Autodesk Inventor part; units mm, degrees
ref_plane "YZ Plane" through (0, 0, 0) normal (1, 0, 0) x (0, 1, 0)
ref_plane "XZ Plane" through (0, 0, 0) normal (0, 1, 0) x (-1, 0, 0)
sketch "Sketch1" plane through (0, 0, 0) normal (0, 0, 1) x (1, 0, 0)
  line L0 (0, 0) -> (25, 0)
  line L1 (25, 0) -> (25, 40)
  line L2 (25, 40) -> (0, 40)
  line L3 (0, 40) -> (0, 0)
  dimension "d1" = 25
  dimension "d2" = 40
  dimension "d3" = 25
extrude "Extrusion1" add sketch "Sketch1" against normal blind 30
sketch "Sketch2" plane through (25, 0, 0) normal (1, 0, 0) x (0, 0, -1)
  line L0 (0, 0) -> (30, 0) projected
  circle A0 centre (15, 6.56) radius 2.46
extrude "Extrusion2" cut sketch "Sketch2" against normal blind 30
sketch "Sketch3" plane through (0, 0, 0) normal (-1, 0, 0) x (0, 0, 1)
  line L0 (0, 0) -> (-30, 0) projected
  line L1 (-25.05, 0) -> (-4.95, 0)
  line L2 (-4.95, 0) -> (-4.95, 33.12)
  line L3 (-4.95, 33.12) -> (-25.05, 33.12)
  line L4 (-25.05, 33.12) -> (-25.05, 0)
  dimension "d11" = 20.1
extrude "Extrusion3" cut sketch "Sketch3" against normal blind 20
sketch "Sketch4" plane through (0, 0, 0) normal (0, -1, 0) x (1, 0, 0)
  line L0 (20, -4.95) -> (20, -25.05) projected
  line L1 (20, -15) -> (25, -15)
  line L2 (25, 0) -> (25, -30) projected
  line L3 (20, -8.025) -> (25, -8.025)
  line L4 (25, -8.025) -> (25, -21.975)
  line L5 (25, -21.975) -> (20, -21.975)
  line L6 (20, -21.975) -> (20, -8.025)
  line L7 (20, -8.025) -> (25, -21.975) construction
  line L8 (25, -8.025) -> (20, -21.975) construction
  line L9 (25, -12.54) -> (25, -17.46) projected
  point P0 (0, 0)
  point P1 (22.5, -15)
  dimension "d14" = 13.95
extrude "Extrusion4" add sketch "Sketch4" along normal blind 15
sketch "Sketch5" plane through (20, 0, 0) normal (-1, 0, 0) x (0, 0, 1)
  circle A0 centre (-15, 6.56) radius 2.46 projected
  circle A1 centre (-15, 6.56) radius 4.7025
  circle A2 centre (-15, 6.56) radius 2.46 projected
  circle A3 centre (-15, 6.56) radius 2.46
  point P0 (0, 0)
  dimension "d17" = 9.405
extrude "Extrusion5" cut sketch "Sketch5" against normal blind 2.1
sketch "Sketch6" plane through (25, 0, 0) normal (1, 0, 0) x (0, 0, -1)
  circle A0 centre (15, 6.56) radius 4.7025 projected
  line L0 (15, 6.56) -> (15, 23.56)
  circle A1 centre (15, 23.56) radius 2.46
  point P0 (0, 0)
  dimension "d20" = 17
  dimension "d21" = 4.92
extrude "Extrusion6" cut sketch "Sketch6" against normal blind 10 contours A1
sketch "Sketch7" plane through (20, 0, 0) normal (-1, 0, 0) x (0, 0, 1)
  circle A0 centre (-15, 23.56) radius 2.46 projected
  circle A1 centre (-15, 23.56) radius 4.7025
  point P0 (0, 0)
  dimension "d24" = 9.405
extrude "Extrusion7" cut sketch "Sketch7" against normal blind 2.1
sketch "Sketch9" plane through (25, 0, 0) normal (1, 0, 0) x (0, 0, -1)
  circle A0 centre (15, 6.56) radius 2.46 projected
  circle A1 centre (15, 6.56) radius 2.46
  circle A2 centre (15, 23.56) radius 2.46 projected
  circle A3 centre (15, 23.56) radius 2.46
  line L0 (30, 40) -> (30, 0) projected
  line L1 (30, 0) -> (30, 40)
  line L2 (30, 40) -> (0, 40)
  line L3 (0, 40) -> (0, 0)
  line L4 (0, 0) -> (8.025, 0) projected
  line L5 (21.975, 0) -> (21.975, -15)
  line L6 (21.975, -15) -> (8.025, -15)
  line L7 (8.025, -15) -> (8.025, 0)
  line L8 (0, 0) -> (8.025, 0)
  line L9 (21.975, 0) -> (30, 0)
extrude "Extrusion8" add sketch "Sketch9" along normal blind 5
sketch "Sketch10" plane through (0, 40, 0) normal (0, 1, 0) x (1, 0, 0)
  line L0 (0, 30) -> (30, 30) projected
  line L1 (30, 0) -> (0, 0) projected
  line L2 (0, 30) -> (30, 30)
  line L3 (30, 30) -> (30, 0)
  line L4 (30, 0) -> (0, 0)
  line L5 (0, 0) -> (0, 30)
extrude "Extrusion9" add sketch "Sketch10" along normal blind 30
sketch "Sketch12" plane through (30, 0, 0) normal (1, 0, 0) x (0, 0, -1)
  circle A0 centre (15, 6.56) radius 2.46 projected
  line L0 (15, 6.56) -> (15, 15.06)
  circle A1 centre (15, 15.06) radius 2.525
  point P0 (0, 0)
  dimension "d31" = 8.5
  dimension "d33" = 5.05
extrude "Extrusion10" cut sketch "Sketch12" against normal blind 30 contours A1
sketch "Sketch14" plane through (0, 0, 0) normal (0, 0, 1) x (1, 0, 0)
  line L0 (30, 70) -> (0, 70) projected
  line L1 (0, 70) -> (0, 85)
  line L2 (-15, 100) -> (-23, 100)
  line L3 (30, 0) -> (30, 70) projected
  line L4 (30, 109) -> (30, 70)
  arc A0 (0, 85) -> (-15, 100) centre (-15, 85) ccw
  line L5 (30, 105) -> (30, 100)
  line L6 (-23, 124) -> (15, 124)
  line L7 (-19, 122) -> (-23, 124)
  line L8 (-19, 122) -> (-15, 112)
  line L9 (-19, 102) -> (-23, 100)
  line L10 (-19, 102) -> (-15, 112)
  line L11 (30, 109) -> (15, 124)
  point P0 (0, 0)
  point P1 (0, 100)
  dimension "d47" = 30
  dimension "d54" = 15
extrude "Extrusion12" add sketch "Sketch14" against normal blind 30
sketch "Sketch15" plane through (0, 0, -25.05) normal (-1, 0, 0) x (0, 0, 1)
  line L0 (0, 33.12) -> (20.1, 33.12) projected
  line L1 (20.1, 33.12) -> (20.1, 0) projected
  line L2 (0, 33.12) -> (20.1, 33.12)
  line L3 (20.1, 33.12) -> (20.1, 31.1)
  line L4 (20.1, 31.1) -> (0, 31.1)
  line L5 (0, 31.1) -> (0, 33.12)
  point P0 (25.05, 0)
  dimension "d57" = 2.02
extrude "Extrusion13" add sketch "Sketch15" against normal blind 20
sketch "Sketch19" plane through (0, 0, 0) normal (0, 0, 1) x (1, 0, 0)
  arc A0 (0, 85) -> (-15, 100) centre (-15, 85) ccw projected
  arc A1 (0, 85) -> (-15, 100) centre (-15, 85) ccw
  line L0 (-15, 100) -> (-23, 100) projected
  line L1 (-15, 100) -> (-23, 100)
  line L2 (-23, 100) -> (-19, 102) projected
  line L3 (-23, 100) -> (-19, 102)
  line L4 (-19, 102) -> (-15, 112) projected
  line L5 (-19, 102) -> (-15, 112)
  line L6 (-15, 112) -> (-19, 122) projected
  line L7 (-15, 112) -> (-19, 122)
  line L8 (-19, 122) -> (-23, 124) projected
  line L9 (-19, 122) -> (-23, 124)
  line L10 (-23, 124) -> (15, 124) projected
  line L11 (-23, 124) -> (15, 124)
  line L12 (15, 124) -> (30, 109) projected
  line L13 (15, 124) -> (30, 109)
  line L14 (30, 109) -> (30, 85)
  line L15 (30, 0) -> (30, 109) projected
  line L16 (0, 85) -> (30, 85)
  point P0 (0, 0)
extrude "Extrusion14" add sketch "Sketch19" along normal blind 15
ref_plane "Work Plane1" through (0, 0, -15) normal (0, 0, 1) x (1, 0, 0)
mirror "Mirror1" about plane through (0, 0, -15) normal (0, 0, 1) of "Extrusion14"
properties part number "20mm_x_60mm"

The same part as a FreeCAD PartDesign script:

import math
import FreeCAD as App
import Part
import Sketcher

V = App.Vector
Q = App.Units.Quantity

doc = App.newDocument("Part")
body = doc.addObject("PartDesign::Body", "Body")

sketch1 = body.newObject("Sketcher::SketchObject", "Sketch")
sketch1.AttachmentSupport = (doc.getObject("XY_Plane"), [""])
sketch1.MapMode = "FlatFace"
sketch1.addGeometry(Part.LineSegment(V(0, 40, 0), V(0, 0, 0)), False)
sketch1.addGeometry(Part.LineSegment(V(0, 0, 0), V(25, 0, 0)), False)
sketch1.addGeometry(Part.LineSegment(V(25, 0, 0), V(25, 40, 0)), False)
sketch1.addGeometry(Part.LineSegment(V(25, 40, 0), V(0, 40, 0)), False)
sketch1.addConstraint(Sketcher.Constraint("Coincident", 0, 2, 1, 1))
sketch1.addConstraint(Sketcher.Constraint("Coincident", 1, 2, 2, 1))
sketch1.addConstraint(Sketcher.Constraint("Coincident", 2, 2, 3, 1))
sketch1.addConstraint(Sketcher.Constraint("Coincident", 3, 2, 0, 1))
sketch1.addConstraint(Sketcher.Constraint("Vertical", 0))
sketch1.addConstraint(Sketcher.Constraint("Horizontal", 1))
sketch1.addConstraint(Sketcher.Constraint("Vertical", 2))
sketch1.addConstraint(Sketcher.Constraint("Horizontal", 3))
sketch1.addConstraint(Sketcher.Constraint("Coincident", 0, 2, -1, 1))
sketch1.addConstraint(Sketcher.Constraint("DistanceX", 1, 1, 1, 2, Q("25 mm")))
sketch1.addConstraint(Sketcher.Constraint("DistanceY", 0, 2, 0, 1, Q("40 mm")))
pad1 = body.newObject("PartDesign::Pad", "Pad")
pad1.Profile = sketch1
pad1.Length = 30
pad1.Reversed = True

sketch2 = body.newObject("Sketcher::SketchObject", "Sketch001")
sketch2.AttachmentSupport = (doc.getObject("YZ_Plane"), [""])
sketch2.MapMode = "FlatFace"
sketch2.AttachmentOffset = App.Placement(V(0, 0, 25), App.Rotation())
sketch2.addGeometry(Part.Circle(V(6.6, -15, 0), V(0, 0, 1), 2.5), False)
sketch2.addConstraint(Sketcher.Constraint("Diameter", 0, Q("4.92 mm")))
sketch2.addConstraint(Sketcher.Constraint("DistanceY", 0, 3, -1, 1, Q("15 mm")))
sketch2.addConstraint(Sketcher.Constraint("DistanceX", -1, 1, 0, 3, Q("6.56 mm")))
pocket1 = body.newObject("PartDesign::Pocket", "Pocket")
pocket1.Profile = sketch2
pocket1.Length = 30

sketch3 = body.newObject("Sketcher::SketchObject", "Sketch002")
sketch3.AttachmentSupport = (doc.getObject("YZ_Plane"), [""])
sketch3.MapMode = "FlatFace"
sketch3.addGeometry(Part.LineSegment(V(0, -25, 0), V(0, -5, 0)), False)
sketch3.addGeometry(Part.LineSegment(V(0, -5, 0), V(33, -5, 0)), False)
sketch3.addGeometry(Part.LineSegment(V(33, -5, 0), V(33, -25, 0)), False)
sketch3.addGeometry(Part.LineSegment(V(33, -25, 0), V(0, -25, 0)), False)
sketch3.addConstraint(Sketcher.Constraint("Coincident", 0, 2, 1, 1))
sketch3.addConstraint(Sketcher.Constraint("Coincident", 1, 2, 2, 1))
sketch3.addConstraint(Sketcher.Constraint("Coincident", 2, 2, 3, 1))
sketch3.addConstraint(Sketcher.Constraint("Coincident", 3, 2, 0, 1))
sketch3.addConstraint(Sketcher.Constraint("Vertical", 0))
sketch3.addConstraint(Sketcher.Constraint("Horizontal", 1))
sketch3.addConstraint(Sketcher.Constraint("Vertical", 2))
sketch3.addConstraint(Sketcher.Constraint("Horizontal", 3))
sketch3.addConstraint(Sketcher.Constraint("PointOnObject", 0, 2, -2))
sketch3.addConstraint(Sketcher.Constraint("DistanceY", 0, 1, 0, 2, Q("20.1 mm")))
sketch3.addConstraint(Sketcher.Constraint("DistanceX", 1, 1, 1, 2, Q("33.12 mm")))
sketch3.addConstraint(Sketcher.Constraint("DistanceY", 0, 2, -1, 1, Q("4.95 mm")))
pocket2 = body.newObject("PartDesign::Pocket", "Pocket001")
pocket2.Profile = sketch3
pocket2.Length = 20
pocket2.Reversed = True

sketch4 = body.newObject("Sketcher::SketchObject", "Sketch003")
sketch4.AttachmentSupport = (doc.getObject("XZ_Plane"), [""])
sketch4.MapMode = "FlatFace"
sketch4.addGeometry(Part.LineSegment(V(25, -8, 0), V(20, -8, 0)), False)
sketch4.addGeometry(Part.LineSegment(V(20, -8, 0), V(20, -22, 0)), False)
sketch4.addGeometry(Part.LineSegment(V(20, -22, 0), V(25, -22, 0)), False)
sketch4.addGeometry(Part.LineSegment(V(25, -22, 0), V(25, -8, 0)), False)
sketch4.addConstraint(Sketcher.Constraint("Coincident", 0, 2, 1, 1))
sketch4.addConstraint(Sketcher.Constraint("Coincident", 1, 2, 2, 1))
sketch4.addConstraint(Sketcher.Constraint("Coincident", 2, 2, 3, 1))
sketch4.addConstraint(Sketcher.Constraint("Coincident", 3, 2, 0, 1))
sketch4.addConstraint(Sketcher.Constraint("Horizontal", 0))
sketch4.addConstraint(Sketcher.Constraint("Vertical", 1))
sketch4.addConstraint(Sketcher.Constraint("Horizontal", 2))
sketch4.addConstraint(Sketcher.Constraint("Vertical", 3))
sketch4.addConstraint(Sketcher.Constraint("DistanceY", 1, 2, 1, 1, Q("13.95 mm")))
sketch4.addConstraint(Sketcher.Constraint("DistanceX", 0, 2, 0, 1, Q("5 mm")))
sketch4.addConstraint(Sketcher.Constraint("DistanceX", -1, 1, 0, 2, Q("20 mm")))
sketch4.addConstraint(Sketcher.Constraint("DistanceY", 0, 2, -1, 1, Q("8.025 mm")))
pad2 = body.newObject("PartDesign::Pad", "Pad001")
pad2.Profile = sketch4
pad2.Length = 15

sketch5 = body.newObject("Sketcher::SketchObject", "Sketch004")
sketch5.AttachmentSupport = (doc.getObject("YZ_Plane"), [""])
sketch5.MapMode = "FlatFace"
sketch5.AttachmentOffset = App.Placement(V(0, 0, 20), App.Rotation())
sketch5.addGeometry(Part.Circle(V(6.6, -15, 0), V(0, 0, 1), 4.7), False)
sketch5.addGeometry(Part.Circle(V(6.6, -15, 0), V(0, 0, 1), 2.5), False)
sketch5.addConstraint(Sketcher.Constraint("Coincident", 1, 3, 0, 3))
sketch5.addConstraint(Sketcher.Constraint("Diameter", 0, Q("9.405 mm")))
sketch5.addConstraint(Sketcher.Constraint("Diameter", 1, Q("4.92 mm")))
sketch5.addConstraint(Sketcher.Constraint("DistanceY", 0, 3, -1, 1, Q("15 mm")))
sketch5.addConstraint(Sketcher.Constraint("DistanceX", -1, 1, 0, 3, Q("6.56 mm")))
pocket3 = body.newObject("PartDesign::Pocket", "Pocket002")
pocket3.Profile = sketch5
pocket3.Length = 2.1
pocket3.Reversed = True

sketch6 = body.newObject("Sketcher::SketchObject", "Sketch005")
sketch6.AttachmentSupport = (doc.getObject("YZ_Plane"), [""])
sketch6.MapMode = "FlatFace"
sketch6.AttachmentOffset = App.Placement(V(0, 0, 25), App.Rotation())
sketch6.addGeometry(Part.Circle(V(23.6, -15, 0), V(0, 0, 1), 2.5), False)
sketch6.addConstraint(Sketcher.Constraint("Diameter", 0, Q("4.92 mm")))
sketch6.addConstraint(Sketcher.Constraint("DistanceY", 0, 3, -1, 1, Q("15 mm")))
sketch6.addConstraint(Sketcher.Constraint("DistanceX", -1, 1, 0, 3, Q("23.56 mm")))
pocket4 = body.newObject("PartDesign::Pocket", "Pocket003")
pocket4.Profile = sketch6
pocket4.Length = 10

sketch7 = body.newObject("Sketcher::SketchObject", "Sketch006")
sketch7.AttachmentSupport = (doc.getObject("YZ_Plane"), [""])
sketch7.MapMode = "FlatFace"
sketch7.AttachmentOffset = App.Placement(V(0, 0, 20), App.Rotation())
sketch7.addGeometry(Part.Circle(V(23.6, -15, 0), V(0, 0, 1), 4.7), False)
sketch7.addGeometry(Part.Circle(V(23.6, -15, 0), V(0, 0, 1), 2.5), False)
sketch7.addConstraint(Sketcher.Constraint("Coincident", 1, 3, 0, 3))
sketch7.addConstraint(Sketcher.Constraint("Diameter", 0, Q("9.405 mm")))
sketch7.addConstraint(Sketcher.Constraint("Diameter", 1, Q("4.92 mm")))
sketch7.addConstraint(Sketcher.Constraint("DistanceY", 0, 3, -1, 1, Q("15 mm")))
sketch7.addConstraint(Sketcher.Constraint("DistanceX", -1, 1, 0, 3, Q("23.56 mm")))
pocket5 = body.newObject("PartDesign::Pocket", "Pocket004")
pocket5.Profile = sketch7
pocket5.Length = 2.1
pocket5.Reversed = True

sketch8 = body.newObject("Sketcher::SketchObject", "Sketch007")
sketch8.AttachmentSupport = (doc.getObject("YZ_Plane"), [""])
sketch8.MapMode = "FlatFace"
sketch8.AttachmentOffset = App.Placement(V(0, 0, 25), App.Rotation())
sketch8.addGeometry(Part.LineSegment(V(0, -30, 0), V(40, -30, 0)), False)
sketch8.addGeometry(Part.LineSegment(V(40, -30, 0), V(40, 0, 0)), False)
sketch8.addGeometry(Part.LineSegment(V(40, 0, 0), V(0, 0, 0)), False)
sketch8.addGeometry(Part.LineSegment(V(0, 0, 0), V(0, -8, 0)), False)
sketch8.addGeometry(Part.LineSegment(V(0, -8, 0), V(-15, -8, 0)), False)
sketch8.addGeometry(Part.LineSegment(V(-15, -8, 0), V(-15, -22, 0)), False)
sketch8.addGeometry(Part.LineSegment(V(-15, -22, 0), V(0, -22, 0)), False)
sketch8.addGeometry(Part.LineSegment(V(0, -22, 0), V(0, -30, 0)), False)
sketch8.addGeometry(Part.Circle(V(6.6, -15, 0), V(0, 0, 1), 2.5), False)
sketch8.addGeometry(Part.Circle(V(23.6, -15, 0), V(0, 0, 1), 2.5), False)
sketch8.addConstraint(Sketcher.Constraint("Coincident", 0, 2, 1, 1))
sketch8.addConstraint(Sketcher.Constraint("Coincident", 1, 2, 2, 1))
sketch8.addConstraint(Sketcher.Constraint("Coincident", 2, 2, 3, 1))
sketch8.addConstraint(Sketcher.Constraint("Coincident", 3, 2, 4, 1))
sketch8.addConstraint(Sketcher.Constraint("Coincident", 4, 2, 5, 1))
sketch8.addConstraint(Sketcher.Constraint("Coincident", 5, 2, 6, 1))
sketch8.addConstraint(Sketcher.Constraint("Coincident", 6, 2, 7, 1))
sketch8.addConstraint(Sketcher.Constraint("Coincident", 7, 2, 0, 1))
sketch8.addConstraint(Sketcher.Constraint("Horizontal", 0))
sketch8.addConstraint(Sketcher.Constraint("Vertical", 1))
sketch8.addConstraint(Sketcher.Constraint("Horizontal", 2))
sketch8.addConstraint(Sketcher.Constraint("Vertical", 3))
sketch8.addConstraint(Sketcher.Constraint("Horizontal", 4))
sketch8.addConstraint(Sketcher.Constraint("Vertical", 5))
sketch8.addConstraint(Sketcher.Constraint("Horizontal", 6))
sketch8.addConstraint(Sketcher.Constraint("Vertical", 7))
sketch8.addConstraint(Sketcher.Constraint("Coincident", 2, 2, -1, 1))
sketch8.addConstraint(Sketcher.Constraint("Equal", 8, 9))
sketch8.addConstraint(Sketcher.Constraint("PointOnObject", 6, 2, -2))
sketch8.addConstraint(Sketcher.Constraint("Horizontal", 8, 3, 9, 3))
sketch8.addConstraint(Sketcher.Constraint("Equal", 3, 7))
sketch8.addConstraint(Sketcher.Constraint("Diameter", 8, Q("4.92 mm")))
sketch8.addConstraint(Sketcher.Constraint("DistanceX", 0, 1, 0, 2, Q("40 mm")))
sketch8.addConstraint(Sketcher.Constraint("DistanceX", 4, 2, 4, 1, Q("15 mm")))
sketch8.addConstraint(Sketcher.Constraint("DistanceY", 1, 1, 1, 2, Q("30 mm")))
sketch8.addConstraint(Sketcher.Constraint("DistanceY", 8, 3, -1, 1, Q("15 mm")))
sketch8.addConstraint(Sketcher.Constraint("DistanceX", 8, 3, 9, 3, Q("17 mm")))
sketch8.addConstraint(Sketcher.Constraint("DistanceY", 5, 2, 5, 1, Q("13.95 mm")))
sketch8.addConstraint(Sketcher.Constraint("DistanceX", -1, 1, 8, 3, Q("6.56 mm")))
pad3 = body.newObject("PartDesign::Pad", "Pad002")
pad3.Profile = sketch8
pad3.Length = 5

sketch9 = body.newObject("Sketcher::SketchObject", "Sketch008")
sketch9.AttachmentSupport = (doc.getObject("XZ_Plane"), [""])
sketch9.MapMode = "FlatFace"
sketch9.AttachmentOffset = App.Placement(V(0, 0, -40), App.Rotation())
sketch9.addGeometry(Part.LineSegment(V(30, -30, 0), V(0, -30, 0)), False)
sketch9.addGeometry(Part.LineSegment(V(0, -30, 0), V(0, 0, 0)), False)
sketch9.addGeometry(Part.LineSegment(V(0, 0, 0), V(30, 0, 0)), False)
sketch9.addGeometry(Part.LineSegment(V(30, 0, 0), V(30, -30, 0)), False)
sketch9.addConstraint(Sketcher.Constraint("Coincident", 0, 2, 1, 1))
sketch9.addConstraint(Sketcher.Constraint("Coincident", 1, 2, 2, 1))
sketch9.addConstraint(Sketcher.Constraint("Coincident", 2, 2, 3, 1))
sketch9.addConstraint(Sketcher.Constraint("Coincident", 3, 2, 0, 1))
sketch9.addConstraint(Sketcher.Constraint("Horizontal", 0))
sketch9.addConstraint(Sketcher.Constraint("Vertical", 1))
sketch9.addConstraint(Sketcher.Constraint("Horizontal", 2))
sketch9.addConstraint(Sketcher.Constraint("Vertical", 3))
sketch9.addConstraint(Sketcher.Constraint("Coincident", 1, 2, -1, 1))
sketch9.addConstraint(Sketcher.Constraint("Equal", 2, 1))
sketch9.addConstraint(Sketcher.Constraint("DistanceX", 0, 2, 0, 1, Q("30 mm")))
pad4 = body.newObject("PartDesign::Pad", "Pad003")
pad4.Profile = sketch9
pad4.Length = 30
pad4.Reversed = True

sketch10 = body.newObject("Sketcher::SketchObject", "Sketch009")
sketch10.AttachmentSupport = (doc.getObject("YZ_Plane"), [""])
sketch10.MapMode = "FlatFace"
sketch10.AttachmentOffset = App.Placement(V(0, 0, 30), App.Rotation())
sketch10.addGeometry(Part.Circle(V(15.1, -15, 0), V(0, 0, 1), 2.5), False)
sketch10.addConstraint(Sketcher.Constraint("Diameter", 0, Q("5.05 mm")))
sketch10.addConstraint(Sketcher.Constraint("DistanceY", 0, 3, -1, 1, Q("15 mm")))
sketch10.addConstraint(Sketcher.Constraint("DistanceX", -1, 1, 0, 3, Q("15.06 mm")))
pocket6 = body.newObject("PartDesign::Pocket", "Pocket005")
pocket6.Profile = sketch10
pocket6.Length = 30

sketch11 = body.newObject("Sketcher::SketchObject", "Sketch010")
sketch11.AttachmentSupport = (doc.getObject("XY_Plane"), [""])
sketch11.MapMode = "FlatFace"
sketch11.addGeometry(Part.LineSegment(V(0, 70, 0), V(30, 70, 0)), False)
sketch11.addGeometry(Part.LineSegment(V(30, 70, 0), V(30, 109, 0)), False)
sketch11.addGeometry(Part.LineSegment(V(30, 109, 0), V(15, 124, 0)), False)
sketch11.addGeometry(Part.LineSegment(V(15, 124, 0), V(-23, 124, 0)), False)
sketch11.addGeometry(Part.LineSegment(V(-23, 124, 0), V(-19, 122, 0)), False)
sketch11.addGeometry(Part.LineSegment(V(-19, 122, 0), V(-15, 112, 0)), False)
sketch11.addGeometry(Part.LineSegment(V(-15, 112, 0), V(-19, 102, 0)), False)
sketch11.addGeometry(Part.LineSegment(V(-19, 102, 0), V(-23, 100, 0)), False)
sketch11.addGeometry(Part.LineSegment(V(-23, 100, 0), V(-15, 100, 0)), False)
sketch11.addGeometry(Part.ArcOfCircle(Part.Circle(V(-15, 85, 0), V(0, 0, 1), 15), math.radians(0), math.radians(90)), False)
sketch11.addGeometry(Part.LineSegment(V(0, 85, 0), V(0, 70, 0)), False)
sketch11.addConstraint(Sketcher.Constraint("Coincident", 0, 2, 1, 1))
sketch11.addConstraint(Sketcher.Constraint("Coincident", 1, 2, 2, 1))
sketch11.addConstraint(Sketcher.Constraint("Coincident", 2, 2, 3, 1))
sketch11.addConstraint(Sketcher.Constraint("Coincident", 3, 2, 4, 1))
sketch11.addConstraint(Sketcher.Constraint("Coincident", 4, 2, 5, 1))
sketch11.addConstraint(Sketcher.Constraint("Coincident", 5, 2, 6, 1))
sketch11.addConstraint(Sketcher.Constraint("Coincident", 6, 2, 7, 1))
sketch11.addConstraint(Sketcher.Constraint("Coincident", 7, 2, 8, 1))
sketch11.addConstraint(Sketcher.Constraint("Tangent", 8, 2, 9, 2))
sketch11.addConstraint(Sketcher.Constraint("Tangent", 9, 1, 10, 1))
sketch11.addConstraint(Sketcher.Constraint("Coincident", 10, 2, 0, 1))
sketch11.addConstraint(Sketcher.Constraint("Horizontal", 0))
sketch11.addConstraint(Sketcher.Constraint("Vertical", 1))
sketch11.addConstraint(Sketcher.Constraint("Horizontal", 3))
sketch11.addConstraint(Sketcher.Constraint("Horizontal", 8))
sketch11.addConstraint(Sketcher.Constraint("Vertical", 10))
sketch11.addConstraint(Sketcher.Constraint("PointOnObject", 9, 1, -2))
sketch11.addConstraint(Sketcher.Constraint("Vertical", 9, 3, 5, 2))
sketch11.addConstraint(Sketcher.Constraint("Vertical", 4, 2, 6, 2))
sketch11.addConstraint(Sketcher.Constraint("Vertical", 3, 2, 7, 2))
sketch11.addConstraint(Sketcher.Constraint("Equal", 5, 6))
sketch11.addConstraint(Sketcher.Constraint("Equal", 4, 7))
sketch11.addConstraint(Sketcher.Constraint("Radius", 9, Q("15 mm")))
sketch11.addConstraint(Sketcher.Constraint("DistanceX", 0, 1, 0, 2, Q("30 mm")))
sketch11.addConstraint(Sketcher.Constraint("DistanceY", 10, 2, 10, 1, Q("15 mm")))
sketch11.addConstraint(Sketcher.Constraint("DistanceX", -1, 1, 2, 2, Q("15 mm")))
sketch11.addConstraint(Sketcher.Constraint("DistanceY", 1, 2, 2, 2, Q("15 mm")))
sketch11.addConstraint(Sketcher.Constraint("DistanceX", 3, 2, 3, 1, Q("38 mm")))
sketch11.addConstraint(Sketcher.Constraint("DistanceY", 1, 1, 1, 2, Q("39 mm")))
sketch11.addConstraint(Sketcher.Constraint("DistanceY", -1, 1, 9, 3, Q("85 mm")))
sketch11.addConstraint(Sketcher.Constraint("DistanceX", 4, 2, -1, 1, Q("19 mm")))
sketch11.addConstraint(Sketcher.Constraint("DistanceY", -1, 1, 4, 2, Q("122 mm")))
pad5 = body.newObject("PartDesign::Pad", "Pad004")
pad5.Profile = sketch11
pad5.Length = 30
pad5.Reversed = True

sketch12 = body.newObject("Sketcher::SketchObject", "Sketch011")
sketch12.AttachmentSupport = (doc.getObject("YZ_Plane"), [""])
sketch12.MapMode = "FlatFace"
sketch12.addGeometry(Part.LineSegment(V(33.1, -5, 0), V(33.1, -25.1, 0)), False)
sketch12.addGeometry(Part.LineSegment(V(33.1, -25.1, 0), V(31.1, -25.1, 0)), False)
sketch12.addGeometry(Part.LineSegment(V(31.1, -25.1, 0), V(31.1, -5, 0)), False)
sketch12.addGeometry(Part.LineSegment(V(31.1, -5, 0), V(33.1, -5, 0)), False)
sketch12.addConstraint(Sketcher.Constraint("Coincident", 0, 2, 1, 1))
sketch12.addConstraint(Sketcher.Constraint("Coincident", 1, 2, 2, 1))
sketch12.addConstraint(Sketcher.Constraint("Coincident", 2, 2, 3, 1))
sketch12.addConstraint(Sketcher.Constraint("Coincident", 3, 2, 0, 1))
sketch12.addConstraint(Sketcher.Constraint("Vertical", 0))
sketch12.addConstraint(Sketcher.Constraint("Horizontal", 1))
sketch12.addConstraint(Sketcher.Constraint("Vertical", 2))
sketch12.addConstraint(Sketcher.Constraint("Horizontal", 3))
sketch12.addConstraint(Sketcher.Constraint("DistanceX", 1, 2, 1, 1, Q("2.02 mm")))
sketch12.addConstraint(Sketcher.Constraint("DistanceY", 0, 2, 0, 1, Q("20.1 mm")))
sketch12.addConstraint(Sketcher.Constraint("DistanceX", -1, 1, 1, 2, Q("31.1 mm")))
sketch12.addConstraint(Sketcher.Constraint("DistanceY", 0, 2, -1, 1, Q("25.05 mm")))
pad6 = body.newObject("PartDesign::Pad", "Pad005")
pad6.Profile = sketch12
pad6.Length = 20

sketch13 = body.newObject("Sketcher::SketchObject", "Sketch012")
sketch13.AttachmentSupport = (doc.getObject("XY_Plane"), [""])
sketch13.MapMode = "FlatFace"
sketch13.addGeometry(Part.ArcOfCircle(Part.Circle(V(-15, 85, 0), V(0, 0, 1), 15), math.radians(0), math.radians(90)), False)
sketch13.addGeometry(Part.LineSegment(V(0, 85, 0), V(30, 85, 0)), False)
sketch13.addGeometry(Part.LineSegment(V(30, 85, 0), V(30, 109, 0)), False)
sketch13.addGeometry(Part.LineSegment(V(30, 109, 0), V(15, 124, 0)), False)
sketch13.addGeometry(Part.LineSegment(V(15, 124, 0), V(-23, 124, 0)), False)
sketch13.addGeometry(Part.LineSegment(V(-23, 124, 0), V(-19, 122, 0)), False)
sketch13.addGeometry(Part.LineSegment(V(-19, 122, 0), V(-15, 112, 0)), False)
sketch13.addGeometry(Part.LineSegment(V(-15, 112, 0), V(-19, 102, 0)), False)
sketch13.addGeometry(Part.LineSegment(V(-19, 102, 0), V(-23, 100, 0)), False)
sketch13.addGeometry(Part.LineSegment(V(-23, 100, 0), V(-15, 100, 0)), False)
sketch13.addConstraint(Sketcher.Constraint("Coincident", 0, 1, 1, 1))
sketch13.addConstraint(Sketcher.Constraint("Coincident", 1, 2, 2, 1))
sketch13.addConstraint(Sketcher.Constraint("Coincident", 2, 2, 3, 1))
sketch13.addConstraint(Sketcher.Constraint("Coincident", 3, 2, 4, 1))
sketch13.addConstraint(Sketcher.Constraint("Coincident", 4, 2, 5, 1))
sketch13.addConstraint(Sketcher.Constraint("Coincident", 5, 2, 6, 1))
sketch13.addConstraint(Sketcher.Constraint("Coincident", 6, 2, 7, 1))
sketch13.addConstraint(Sketcher.Constraint("Coincident", 7, 2, 8, 1))
sketch13.addConstraint(Sketcher.Constraint("Coincident", 8, 2, 9, 1))
sketch13.addConstraint(Sketcher.Constraint("Tangent", 9, 2, 0, 2))
sketch13.addConstraint(Sketcher.Constraint("Horizontal", 1))
sketch13.addConstraint(Sketcher.Constraint("Vertical", 2))
sketch13.addConstraint(Sketcher.Constraint("Horizontal", 4))
sketch13.addConstraint(Sketcher.Constraint("Horizontal", 9))
sketch13.addConstraint(Sketcher.Constraint("PointOnObject", 0, 1, -2))
sketch13.addConstraint(Sketcher.Constraint("Vertical", 0, 3, 6, 2))
sketch13.addConstraint(Sketcher.Constraint("Vertical", 5, 2, 7, 2))
sketch13.addConstraint(Sketcher.Constraint("Vertical", 4, 2, 8, 2))
sketch13.addConstraint(Sketcher.Constraint("Equal", 6, 7))
sketch13.addConstraint(Sketcher.Constraint("Equal", 5, 8))
sketch13.addConstraint(Sketcher.Constraint("Radius", 0, Q("15 mm")))
sketch13.addConstraint(Sketcher.Constraint("DistanceX", 1, 1, 1, 2, Q("30 mm")))
sketch13.addConstraint(Sketcher.Constraint("DistanceX", 4, 2, 4, 1, Q("38 mm")))
sketch13.addConstraint(Sketcher.Constraint("DistanceX", 9, 1, 9, 2, Q("8 mm")))
sketch13.addConstraint(Sketcher.Constraint("DistanceY", 2, 1, 2, 2, Q("24 mm")))
sketch13.addConstraint(Sketcher.Constraint("Angle", 3, Q("135 deg")))
sketch13.addConstraint(Sketcher.Constraint("DistanceY", -1, 1, 0, 3, Q("85 mm")))
sketch13.addConstraint(Sketcher.Constraint("DistanceY", -1, 1, 0, 1, Q("85 mm")))
sketch13.addConstraint(Sketcher.Constraint("DistanceX", 5, 2, -1, 1, Q("19 mm")))
sketch13.addConstraint(Sketcher.Constraint("DistanceY", -1, 1, 5, 2, Q("122 mm")))
pad7 = body.newObject("PartDesign::Pad", "Pad006")
pad7.Profile = sketch13
pad7.Length = 15
doc.recompute()

datumplane = body.newObject("PartDesign::Plane", "DatumPlane")
datumplane.AttachmentSupport = (doc.getObject("XY_Plane"), [""])
datumplane.MapMode = "FlatFace"
datumplane.AttachmentOffset = App.Placement(V(0, 0, -15), App.Rotation())
mirrored = body.newObject("PartDesign::Mirrored", "Mirrored")
mirrored.Originals = [pad7]
mirrored.MirrorPlane = (datumplane, [""])
body.Tip = mirrored

doc.recompute()
